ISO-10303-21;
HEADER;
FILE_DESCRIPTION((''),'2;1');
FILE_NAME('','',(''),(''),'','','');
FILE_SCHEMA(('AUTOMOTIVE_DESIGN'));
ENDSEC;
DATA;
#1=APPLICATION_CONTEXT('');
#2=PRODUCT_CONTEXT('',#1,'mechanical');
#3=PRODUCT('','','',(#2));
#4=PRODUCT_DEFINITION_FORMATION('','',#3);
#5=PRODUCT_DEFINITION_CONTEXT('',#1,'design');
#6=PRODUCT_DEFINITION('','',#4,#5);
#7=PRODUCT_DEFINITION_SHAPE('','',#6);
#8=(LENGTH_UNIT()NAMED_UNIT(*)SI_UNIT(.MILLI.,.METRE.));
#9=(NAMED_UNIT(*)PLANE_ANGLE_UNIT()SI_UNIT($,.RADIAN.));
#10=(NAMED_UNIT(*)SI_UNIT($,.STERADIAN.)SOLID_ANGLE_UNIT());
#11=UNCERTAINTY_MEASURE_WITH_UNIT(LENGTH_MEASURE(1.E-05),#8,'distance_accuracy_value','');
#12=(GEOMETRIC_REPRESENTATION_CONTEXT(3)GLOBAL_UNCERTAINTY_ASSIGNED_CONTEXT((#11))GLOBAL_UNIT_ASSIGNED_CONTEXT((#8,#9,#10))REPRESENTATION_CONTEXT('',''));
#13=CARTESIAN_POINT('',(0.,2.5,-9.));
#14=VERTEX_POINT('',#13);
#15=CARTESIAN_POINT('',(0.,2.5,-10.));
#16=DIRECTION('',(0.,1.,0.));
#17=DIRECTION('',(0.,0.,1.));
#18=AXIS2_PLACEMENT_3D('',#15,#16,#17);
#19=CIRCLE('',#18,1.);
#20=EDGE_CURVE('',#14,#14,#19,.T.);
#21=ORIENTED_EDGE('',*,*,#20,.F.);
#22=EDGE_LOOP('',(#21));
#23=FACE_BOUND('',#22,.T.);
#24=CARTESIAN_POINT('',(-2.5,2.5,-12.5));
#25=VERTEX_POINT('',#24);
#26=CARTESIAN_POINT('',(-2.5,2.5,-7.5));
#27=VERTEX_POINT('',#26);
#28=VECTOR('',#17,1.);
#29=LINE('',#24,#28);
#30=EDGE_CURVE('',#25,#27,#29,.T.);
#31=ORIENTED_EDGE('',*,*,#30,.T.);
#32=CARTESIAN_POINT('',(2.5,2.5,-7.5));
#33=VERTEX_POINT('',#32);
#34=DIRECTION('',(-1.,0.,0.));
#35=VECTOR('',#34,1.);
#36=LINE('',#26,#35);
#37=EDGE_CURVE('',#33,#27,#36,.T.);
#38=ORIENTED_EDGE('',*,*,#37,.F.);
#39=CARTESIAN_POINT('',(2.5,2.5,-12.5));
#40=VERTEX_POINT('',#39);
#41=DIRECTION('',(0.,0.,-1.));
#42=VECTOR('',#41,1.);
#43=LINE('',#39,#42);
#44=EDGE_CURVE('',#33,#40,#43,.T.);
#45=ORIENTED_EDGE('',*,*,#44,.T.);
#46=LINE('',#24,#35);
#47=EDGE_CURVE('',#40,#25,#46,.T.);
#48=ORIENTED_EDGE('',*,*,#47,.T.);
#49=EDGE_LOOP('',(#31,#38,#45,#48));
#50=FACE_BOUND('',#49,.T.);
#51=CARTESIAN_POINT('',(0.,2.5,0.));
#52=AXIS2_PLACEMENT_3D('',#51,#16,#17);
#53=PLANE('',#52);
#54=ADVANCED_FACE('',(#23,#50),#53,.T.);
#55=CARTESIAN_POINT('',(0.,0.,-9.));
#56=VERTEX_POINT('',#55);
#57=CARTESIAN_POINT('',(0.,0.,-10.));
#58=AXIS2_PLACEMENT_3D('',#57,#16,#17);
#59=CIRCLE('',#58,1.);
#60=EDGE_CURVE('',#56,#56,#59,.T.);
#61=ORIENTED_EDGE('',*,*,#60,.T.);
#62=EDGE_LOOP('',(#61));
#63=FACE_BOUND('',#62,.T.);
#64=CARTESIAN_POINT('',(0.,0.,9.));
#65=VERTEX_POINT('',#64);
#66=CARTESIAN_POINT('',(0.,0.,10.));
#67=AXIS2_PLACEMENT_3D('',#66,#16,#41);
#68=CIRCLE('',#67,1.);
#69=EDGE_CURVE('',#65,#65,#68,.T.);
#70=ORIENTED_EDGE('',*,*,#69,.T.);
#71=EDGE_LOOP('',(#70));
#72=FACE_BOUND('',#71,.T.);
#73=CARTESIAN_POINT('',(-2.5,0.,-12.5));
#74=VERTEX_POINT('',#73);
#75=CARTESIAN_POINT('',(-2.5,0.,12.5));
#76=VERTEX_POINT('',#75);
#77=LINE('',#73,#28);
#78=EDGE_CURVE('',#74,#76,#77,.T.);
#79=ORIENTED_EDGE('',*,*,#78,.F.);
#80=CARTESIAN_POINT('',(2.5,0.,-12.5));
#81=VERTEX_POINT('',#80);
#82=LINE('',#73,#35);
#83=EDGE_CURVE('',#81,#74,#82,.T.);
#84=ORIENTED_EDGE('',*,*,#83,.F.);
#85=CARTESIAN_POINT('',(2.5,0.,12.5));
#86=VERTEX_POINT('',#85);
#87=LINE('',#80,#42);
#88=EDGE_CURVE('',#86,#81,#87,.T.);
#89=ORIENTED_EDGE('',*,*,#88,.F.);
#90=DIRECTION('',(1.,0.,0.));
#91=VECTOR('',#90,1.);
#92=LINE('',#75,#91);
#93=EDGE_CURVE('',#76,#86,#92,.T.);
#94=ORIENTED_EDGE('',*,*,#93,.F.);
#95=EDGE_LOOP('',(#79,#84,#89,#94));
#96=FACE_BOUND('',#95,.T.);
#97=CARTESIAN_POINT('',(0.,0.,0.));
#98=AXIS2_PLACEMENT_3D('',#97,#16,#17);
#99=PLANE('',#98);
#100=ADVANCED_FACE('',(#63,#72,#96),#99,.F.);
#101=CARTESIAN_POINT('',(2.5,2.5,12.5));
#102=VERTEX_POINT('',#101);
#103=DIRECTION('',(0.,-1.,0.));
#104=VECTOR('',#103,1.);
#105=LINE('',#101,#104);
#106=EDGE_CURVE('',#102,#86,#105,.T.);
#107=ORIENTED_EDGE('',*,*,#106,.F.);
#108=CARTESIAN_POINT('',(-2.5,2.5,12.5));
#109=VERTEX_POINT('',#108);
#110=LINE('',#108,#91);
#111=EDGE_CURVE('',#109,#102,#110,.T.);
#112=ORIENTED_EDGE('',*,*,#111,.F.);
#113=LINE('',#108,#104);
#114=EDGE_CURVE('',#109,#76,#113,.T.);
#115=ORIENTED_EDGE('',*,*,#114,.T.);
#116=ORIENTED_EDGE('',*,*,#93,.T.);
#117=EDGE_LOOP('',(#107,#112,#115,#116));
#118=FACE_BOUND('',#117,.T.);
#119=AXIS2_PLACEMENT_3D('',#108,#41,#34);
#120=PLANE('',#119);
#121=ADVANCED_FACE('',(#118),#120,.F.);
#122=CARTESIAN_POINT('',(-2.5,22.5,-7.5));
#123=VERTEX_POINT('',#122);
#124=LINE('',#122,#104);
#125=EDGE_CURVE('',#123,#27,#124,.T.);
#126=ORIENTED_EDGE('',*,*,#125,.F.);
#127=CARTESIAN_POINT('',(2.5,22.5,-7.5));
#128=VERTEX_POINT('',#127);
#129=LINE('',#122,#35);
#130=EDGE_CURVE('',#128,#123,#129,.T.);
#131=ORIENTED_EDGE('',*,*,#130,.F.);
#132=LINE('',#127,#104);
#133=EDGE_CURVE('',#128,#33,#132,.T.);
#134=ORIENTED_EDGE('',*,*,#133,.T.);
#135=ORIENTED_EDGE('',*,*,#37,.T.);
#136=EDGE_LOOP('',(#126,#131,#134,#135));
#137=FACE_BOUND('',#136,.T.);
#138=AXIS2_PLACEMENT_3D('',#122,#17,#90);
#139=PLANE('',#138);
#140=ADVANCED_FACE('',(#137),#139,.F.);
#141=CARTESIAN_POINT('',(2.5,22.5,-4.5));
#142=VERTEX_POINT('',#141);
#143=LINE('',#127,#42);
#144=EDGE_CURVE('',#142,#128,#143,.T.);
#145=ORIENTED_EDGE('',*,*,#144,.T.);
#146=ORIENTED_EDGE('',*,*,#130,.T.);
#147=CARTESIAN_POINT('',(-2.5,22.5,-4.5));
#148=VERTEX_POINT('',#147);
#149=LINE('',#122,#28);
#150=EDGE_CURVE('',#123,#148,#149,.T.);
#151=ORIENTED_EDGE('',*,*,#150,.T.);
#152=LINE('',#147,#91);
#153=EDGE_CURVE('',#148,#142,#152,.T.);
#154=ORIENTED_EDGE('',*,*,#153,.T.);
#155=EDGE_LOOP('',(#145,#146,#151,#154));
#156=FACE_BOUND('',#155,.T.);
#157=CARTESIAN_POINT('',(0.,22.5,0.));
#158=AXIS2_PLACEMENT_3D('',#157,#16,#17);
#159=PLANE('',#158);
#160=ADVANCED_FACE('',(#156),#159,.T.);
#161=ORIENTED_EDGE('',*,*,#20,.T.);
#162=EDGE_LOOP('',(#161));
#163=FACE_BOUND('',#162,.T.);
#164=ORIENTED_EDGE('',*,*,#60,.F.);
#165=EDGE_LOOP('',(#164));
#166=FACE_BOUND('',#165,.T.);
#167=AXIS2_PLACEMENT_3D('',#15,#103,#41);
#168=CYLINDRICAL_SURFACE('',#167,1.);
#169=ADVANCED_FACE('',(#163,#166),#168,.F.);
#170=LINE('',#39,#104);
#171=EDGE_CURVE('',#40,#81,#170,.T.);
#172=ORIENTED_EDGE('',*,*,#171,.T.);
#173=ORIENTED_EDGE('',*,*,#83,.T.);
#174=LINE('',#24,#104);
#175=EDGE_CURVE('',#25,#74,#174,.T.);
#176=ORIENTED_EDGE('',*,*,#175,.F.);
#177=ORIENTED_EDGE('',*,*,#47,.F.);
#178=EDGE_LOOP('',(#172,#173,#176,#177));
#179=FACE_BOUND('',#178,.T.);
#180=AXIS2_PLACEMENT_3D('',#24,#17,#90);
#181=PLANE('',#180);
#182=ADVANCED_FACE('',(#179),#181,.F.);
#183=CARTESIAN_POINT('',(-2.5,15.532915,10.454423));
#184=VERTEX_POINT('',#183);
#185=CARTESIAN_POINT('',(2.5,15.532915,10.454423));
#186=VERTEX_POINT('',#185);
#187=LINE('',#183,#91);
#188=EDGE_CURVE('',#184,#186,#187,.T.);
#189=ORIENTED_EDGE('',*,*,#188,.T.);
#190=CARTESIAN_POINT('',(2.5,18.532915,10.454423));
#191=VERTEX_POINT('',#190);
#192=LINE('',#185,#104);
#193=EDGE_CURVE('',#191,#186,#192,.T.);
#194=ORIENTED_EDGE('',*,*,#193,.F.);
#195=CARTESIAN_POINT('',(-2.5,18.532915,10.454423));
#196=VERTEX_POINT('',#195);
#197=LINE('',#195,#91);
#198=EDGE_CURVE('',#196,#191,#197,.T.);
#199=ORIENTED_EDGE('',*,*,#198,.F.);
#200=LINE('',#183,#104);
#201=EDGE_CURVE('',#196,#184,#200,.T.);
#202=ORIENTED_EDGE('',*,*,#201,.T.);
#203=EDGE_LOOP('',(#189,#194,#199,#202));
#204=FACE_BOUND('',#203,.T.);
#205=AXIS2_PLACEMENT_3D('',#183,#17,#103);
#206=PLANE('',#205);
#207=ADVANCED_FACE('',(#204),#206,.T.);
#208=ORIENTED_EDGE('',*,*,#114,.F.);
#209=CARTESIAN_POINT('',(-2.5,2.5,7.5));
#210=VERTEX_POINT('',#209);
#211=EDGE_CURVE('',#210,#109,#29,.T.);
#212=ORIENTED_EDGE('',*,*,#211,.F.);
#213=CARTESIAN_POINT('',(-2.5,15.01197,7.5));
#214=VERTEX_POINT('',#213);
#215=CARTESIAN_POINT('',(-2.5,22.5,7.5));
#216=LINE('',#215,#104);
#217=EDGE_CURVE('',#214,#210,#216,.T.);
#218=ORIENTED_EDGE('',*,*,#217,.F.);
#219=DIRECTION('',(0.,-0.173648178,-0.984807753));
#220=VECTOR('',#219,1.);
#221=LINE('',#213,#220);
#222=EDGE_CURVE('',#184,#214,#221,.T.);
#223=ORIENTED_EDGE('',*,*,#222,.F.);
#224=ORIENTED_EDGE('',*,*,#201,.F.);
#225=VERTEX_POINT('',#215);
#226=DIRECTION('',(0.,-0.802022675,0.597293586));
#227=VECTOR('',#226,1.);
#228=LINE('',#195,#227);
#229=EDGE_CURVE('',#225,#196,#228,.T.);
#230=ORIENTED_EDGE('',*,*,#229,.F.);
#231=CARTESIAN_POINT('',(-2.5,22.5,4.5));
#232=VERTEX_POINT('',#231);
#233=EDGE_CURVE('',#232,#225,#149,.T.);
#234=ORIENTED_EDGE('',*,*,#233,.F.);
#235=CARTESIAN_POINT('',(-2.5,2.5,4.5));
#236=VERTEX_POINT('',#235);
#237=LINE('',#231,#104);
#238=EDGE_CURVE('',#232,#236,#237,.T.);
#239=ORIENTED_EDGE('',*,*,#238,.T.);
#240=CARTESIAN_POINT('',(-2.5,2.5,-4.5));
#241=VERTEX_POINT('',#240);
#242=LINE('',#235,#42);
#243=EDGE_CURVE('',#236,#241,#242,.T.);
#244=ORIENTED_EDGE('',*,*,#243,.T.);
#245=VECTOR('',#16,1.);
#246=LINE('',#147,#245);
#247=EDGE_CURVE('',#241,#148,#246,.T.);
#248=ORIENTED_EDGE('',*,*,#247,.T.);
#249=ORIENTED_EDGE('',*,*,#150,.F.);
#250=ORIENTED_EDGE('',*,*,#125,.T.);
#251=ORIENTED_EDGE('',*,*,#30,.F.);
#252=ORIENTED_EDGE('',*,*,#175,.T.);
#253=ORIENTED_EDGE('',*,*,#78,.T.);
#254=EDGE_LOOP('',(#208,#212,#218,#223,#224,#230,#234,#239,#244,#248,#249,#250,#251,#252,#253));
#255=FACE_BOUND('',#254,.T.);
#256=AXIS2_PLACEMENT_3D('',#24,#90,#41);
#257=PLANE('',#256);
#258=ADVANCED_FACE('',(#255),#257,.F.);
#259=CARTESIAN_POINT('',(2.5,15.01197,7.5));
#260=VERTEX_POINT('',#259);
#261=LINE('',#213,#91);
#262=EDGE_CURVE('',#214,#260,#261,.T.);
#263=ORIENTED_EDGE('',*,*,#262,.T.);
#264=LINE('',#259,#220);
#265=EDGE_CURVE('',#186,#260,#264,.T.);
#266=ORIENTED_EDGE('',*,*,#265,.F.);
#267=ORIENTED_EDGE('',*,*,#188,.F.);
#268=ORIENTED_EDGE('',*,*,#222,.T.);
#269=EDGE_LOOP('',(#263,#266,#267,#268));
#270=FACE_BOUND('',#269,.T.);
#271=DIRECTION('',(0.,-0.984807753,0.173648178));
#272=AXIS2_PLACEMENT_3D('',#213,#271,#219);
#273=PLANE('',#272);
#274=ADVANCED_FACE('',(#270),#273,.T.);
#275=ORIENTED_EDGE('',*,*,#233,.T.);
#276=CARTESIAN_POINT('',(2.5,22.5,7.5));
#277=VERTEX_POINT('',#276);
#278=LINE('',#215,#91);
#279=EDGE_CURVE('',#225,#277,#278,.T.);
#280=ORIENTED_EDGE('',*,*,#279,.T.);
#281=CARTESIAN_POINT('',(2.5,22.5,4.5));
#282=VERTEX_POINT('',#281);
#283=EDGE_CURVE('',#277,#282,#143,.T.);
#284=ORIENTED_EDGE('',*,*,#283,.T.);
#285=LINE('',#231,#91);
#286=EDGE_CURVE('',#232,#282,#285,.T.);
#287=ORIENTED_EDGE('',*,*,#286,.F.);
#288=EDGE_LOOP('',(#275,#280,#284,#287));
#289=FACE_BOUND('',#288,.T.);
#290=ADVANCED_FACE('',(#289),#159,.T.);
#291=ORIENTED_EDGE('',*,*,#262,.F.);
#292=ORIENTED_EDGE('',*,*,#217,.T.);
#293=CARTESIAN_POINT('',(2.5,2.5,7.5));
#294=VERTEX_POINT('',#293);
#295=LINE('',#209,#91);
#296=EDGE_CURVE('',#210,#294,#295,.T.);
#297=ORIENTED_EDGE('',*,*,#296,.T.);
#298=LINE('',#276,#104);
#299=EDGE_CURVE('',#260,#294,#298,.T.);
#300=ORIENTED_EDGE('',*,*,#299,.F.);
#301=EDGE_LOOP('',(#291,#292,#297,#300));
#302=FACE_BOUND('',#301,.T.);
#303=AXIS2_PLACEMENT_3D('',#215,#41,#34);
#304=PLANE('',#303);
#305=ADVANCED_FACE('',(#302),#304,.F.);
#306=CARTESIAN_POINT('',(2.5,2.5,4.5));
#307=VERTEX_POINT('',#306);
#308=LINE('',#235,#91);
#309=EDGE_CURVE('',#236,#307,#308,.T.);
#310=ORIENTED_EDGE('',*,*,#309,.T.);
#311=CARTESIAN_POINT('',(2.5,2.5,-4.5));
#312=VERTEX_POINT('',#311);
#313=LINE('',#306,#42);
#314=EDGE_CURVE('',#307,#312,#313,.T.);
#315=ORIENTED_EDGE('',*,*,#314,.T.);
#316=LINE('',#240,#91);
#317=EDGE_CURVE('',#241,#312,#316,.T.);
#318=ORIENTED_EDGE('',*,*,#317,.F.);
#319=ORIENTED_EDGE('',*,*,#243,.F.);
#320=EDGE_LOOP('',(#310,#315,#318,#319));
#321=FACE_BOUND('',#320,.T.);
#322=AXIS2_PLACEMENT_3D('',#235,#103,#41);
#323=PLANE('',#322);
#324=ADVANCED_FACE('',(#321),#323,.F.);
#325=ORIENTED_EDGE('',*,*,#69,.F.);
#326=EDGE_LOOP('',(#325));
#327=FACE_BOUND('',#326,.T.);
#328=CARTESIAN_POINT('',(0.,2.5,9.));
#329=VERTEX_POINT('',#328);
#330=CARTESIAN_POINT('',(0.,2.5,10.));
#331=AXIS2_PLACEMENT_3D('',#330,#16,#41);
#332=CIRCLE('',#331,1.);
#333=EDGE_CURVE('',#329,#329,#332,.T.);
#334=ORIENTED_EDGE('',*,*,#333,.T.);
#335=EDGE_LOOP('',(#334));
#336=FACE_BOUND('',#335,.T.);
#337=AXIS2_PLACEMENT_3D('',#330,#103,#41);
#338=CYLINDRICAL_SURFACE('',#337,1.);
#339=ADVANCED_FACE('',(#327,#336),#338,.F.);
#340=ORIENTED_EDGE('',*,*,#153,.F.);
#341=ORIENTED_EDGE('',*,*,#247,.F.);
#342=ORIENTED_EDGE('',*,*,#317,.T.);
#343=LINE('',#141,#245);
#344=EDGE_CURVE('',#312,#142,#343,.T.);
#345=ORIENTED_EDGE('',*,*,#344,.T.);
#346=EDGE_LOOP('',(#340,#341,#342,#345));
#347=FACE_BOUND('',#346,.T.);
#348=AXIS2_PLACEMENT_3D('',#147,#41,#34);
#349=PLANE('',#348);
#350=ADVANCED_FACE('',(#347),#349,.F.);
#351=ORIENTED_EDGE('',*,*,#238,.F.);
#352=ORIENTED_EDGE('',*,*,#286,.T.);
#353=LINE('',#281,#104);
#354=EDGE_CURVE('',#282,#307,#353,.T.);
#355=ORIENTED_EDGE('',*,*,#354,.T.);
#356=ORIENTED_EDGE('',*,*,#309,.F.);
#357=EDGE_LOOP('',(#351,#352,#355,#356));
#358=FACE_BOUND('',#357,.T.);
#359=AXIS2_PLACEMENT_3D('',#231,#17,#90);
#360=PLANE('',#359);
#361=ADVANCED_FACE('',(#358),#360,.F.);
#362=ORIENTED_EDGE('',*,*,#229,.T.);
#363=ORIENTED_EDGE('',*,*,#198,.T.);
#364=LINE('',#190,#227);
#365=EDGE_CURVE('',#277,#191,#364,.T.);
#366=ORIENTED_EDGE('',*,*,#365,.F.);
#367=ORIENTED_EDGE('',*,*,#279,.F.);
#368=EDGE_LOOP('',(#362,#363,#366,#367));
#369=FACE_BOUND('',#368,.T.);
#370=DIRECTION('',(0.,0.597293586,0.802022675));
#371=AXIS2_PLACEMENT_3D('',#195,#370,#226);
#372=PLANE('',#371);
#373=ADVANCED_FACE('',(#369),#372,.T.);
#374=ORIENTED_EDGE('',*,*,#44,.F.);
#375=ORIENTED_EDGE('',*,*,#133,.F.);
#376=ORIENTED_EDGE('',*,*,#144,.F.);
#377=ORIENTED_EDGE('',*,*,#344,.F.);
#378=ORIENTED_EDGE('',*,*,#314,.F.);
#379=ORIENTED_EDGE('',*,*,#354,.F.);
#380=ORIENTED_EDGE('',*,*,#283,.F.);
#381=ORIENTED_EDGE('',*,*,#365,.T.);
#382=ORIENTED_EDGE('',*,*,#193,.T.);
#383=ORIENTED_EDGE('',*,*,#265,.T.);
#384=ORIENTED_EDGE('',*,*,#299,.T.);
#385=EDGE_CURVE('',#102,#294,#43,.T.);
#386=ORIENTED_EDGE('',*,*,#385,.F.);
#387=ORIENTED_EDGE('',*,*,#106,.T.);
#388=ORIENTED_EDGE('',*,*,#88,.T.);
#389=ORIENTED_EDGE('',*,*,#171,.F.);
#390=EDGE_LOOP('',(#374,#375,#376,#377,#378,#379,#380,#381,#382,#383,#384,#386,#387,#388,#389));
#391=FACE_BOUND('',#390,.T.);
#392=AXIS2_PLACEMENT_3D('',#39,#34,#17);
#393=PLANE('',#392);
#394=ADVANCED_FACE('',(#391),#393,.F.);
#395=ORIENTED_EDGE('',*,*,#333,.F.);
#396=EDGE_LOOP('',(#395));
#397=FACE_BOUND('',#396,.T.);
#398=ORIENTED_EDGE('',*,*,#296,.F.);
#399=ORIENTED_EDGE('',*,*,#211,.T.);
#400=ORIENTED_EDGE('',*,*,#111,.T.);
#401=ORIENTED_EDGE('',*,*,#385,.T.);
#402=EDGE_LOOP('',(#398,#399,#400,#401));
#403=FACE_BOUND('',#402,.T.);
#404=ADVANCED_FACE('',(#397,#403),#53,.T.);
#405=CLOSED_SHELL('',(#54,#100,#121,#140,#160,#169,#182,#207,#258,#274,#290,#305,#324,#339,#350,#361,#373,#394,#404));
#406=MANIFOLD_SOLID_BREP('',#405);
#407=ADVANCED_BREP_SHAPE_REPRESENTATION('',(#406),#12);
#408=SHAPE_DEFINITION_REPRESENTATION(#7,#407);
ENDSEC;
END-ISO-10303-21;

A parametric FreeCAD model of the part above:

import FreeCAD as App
import Part
import Sketcher
from FreeCAD import Vector
Q = App.Units.Quantity

doc = App.newDocument("Part")
body = doc.addObject("PartDesign::Body", "Body")

sketch1 = body.newObject("Sketcher::SketchObject", "Sketch")
sketch1.AttachmentSupport = (doc.getObject("XZ_Plane"), [""])
sketch1.MapMode = "FlatFace"
sketch1.addGeometry(Part.LineSegment(Vector(-2.5, -12.5, 0), Vector(-2.5, 12.5, 0)), False)
sketch1.addGeometry(Part.LineSegment(Vector(-2.5, 12.5, 0), Vector(2.5, 12.5, 0)), False)
sketch1.addGeometry(Part.LineSegment(Vector(2.5, 12.5, 0), Vector(2.5, -12.5, 0)), False)
sketch1.addGeometry(Part.LineSegment(Vector(2.5, -12.5, 0), Vector(-2.5, -12.5, 0)), False)
sketch1.addGeometry(Part.Circle(Vector(0, 10, 0), Vector(0, 0, 1), 1), False)
sketch1.addGeometry(Part.Circle(Vector(0, -10, 0), Vector(0, 0, 1), 1), False)
sketch1.addConstraint(Sketcher.Constraint("Coincident", 0, 2, 1, 1))
sketch1.addConstraint(Sketcher.Constraint("Coincident", 1, 2, 2, 1))
sketch1.addConstraint(Sketcher.Constraint("Coincident", 2, 2, 3, 1))
sketch1.addConstraint(Sketcher.Constraint("Coincident", 3, 2, 0, 1))
sketch1.addConstraint(Sketcher.Constraint("Vertical", 0))
sketch1.addConstraint(Sketcher.Constraint("Horizontal", 1))
sketch1.addConstraint(Sketcher.Constraint("Vertical", 2))
sketch1.addConstraint(Sketcher.Constraint("Horizontal", 3))
sketch1.addConstraint(Sketcher.Constraint("Equal", 4, 5))
sketch1.addConstraint(Sketcher.Constraint("Symmetric", 4, 3, 5, 3, -1, 1))
sketch1.addConstraint(Sketcher.Constraint("Symmetric", 0, 2, 2, 2, -1, 1))
sketch1.addConstraint(Sketcher.Constraint("PointOnObject", 4, 3, -2))
sketch1.addConstraint(Sketcher.Constraint("Diameter", 4, 2.0))
sketch1.addConstraint(Sketcher.Constraint("DistanceX", 1, 1, 1, 2, 5.0))
sketch1.addConstraint(Sketcher.Constraint("DistanceY", 0, 1, 0, 2, 25.0))
sketch1.addConstraint(Sketcher.Constraint("DistanceY", -1, 1, 4, 3, 10.0))
pad1 = body.newObject("PartDesign::Pad", "Pad")
pad1.Profile = sketch1
pad1.Length = 2.5
pad1.Reversed = True

sketch2 = body.newObject("Sketcher::SketchObject", "Sketch001")
sketch2.AttachmentSupport = (doc.getObject("XZ_Plane"), [""])
sketch2.MapMode = "FlatFace"
sketch2.AttachmentOffset = App.Placement(Vector(0, 0, -2.5), App.Rotation())
sketch2.addGeometry(Part.LineSegment(Vector(-2, -8, 0), Vector(-2, 8, 0)), False)
sketch2.addGeometry(Part.LineSegment(Vector(-2, 8, 0), Vector(2, 8, 0)), False)
sketch2.addGeometry(Part.LineSegment(Vector(2, 8, 0), Vector(2, -8, 0)), False)
sketch2.addGeometry(Part.LineSegment(Vector(2, -8, 0), Vector(-2, -8, 0)), False)
sketch2.addConstraint(Sketcher.Constraint("Coincident", 0, 2, 1, 1))
sketch2.addConstraint(Sketcher.Constraint("Coincident", 1, 2, 2, 1))
sketch2.addConstraint(Sketcher.Constraint("Coincident", 2, 2, 3, 1))
sketch2.addConstraint(Sketcher.Constraint("Coincident", 3, 2, 0, 1))
sketch2.addConstraint(Sketcher.Constraint("Vertical", 0))
sketch2.addConstraint(Sketcher.Constraint("Horizontal", 1))
sketch2.addConstraint(Sketcher.Constraint("Vertical", 2))
sketch2.addConstraint(Sketcher.Constraint("Horizontal", 3))
sketch2.addConstraint(Sketcher.Constraint("Symmetric", 0, 2, 2, 2, -1, 1))
sketch2.addConstraint(Sketcher.Constraint("DistanceX", 1, 1, 1, 2, 5.0))
sketch2.addConstraint(Sketcher.Constraint("DistanceY", 0, 1, 0, 2, 15.0))
pad2 = body.newObject("PartDesign::Pad", "Pad001")
pad2.Profile = sketch2
pad2.Length = 20
pad2.Reversed = True

sketch3 = body.newObject("Sketcher::SketchObject", "Sketch002")
sketch3.AttachmentSupport = (doc.getObject("YZ_Plane"), [""])
sketch3.MapMode = "FlatFace"
sketch3.AttachmentOffset = App.Placement(Vector(0, 0, 2.5), App.Rotation())
sketch3.addGeometry(Part.LineSegment(Vector(22, 4, 0), Vector(2, 4, 0)), False)
sketch3.addGeometry(Part.LineSegment(Vector(2, 4, 0), Vector(2, -4, 0)), False)
sketch3.addGeometry(Part.LineSegment(Vector(2, -4, 0), Vector(22, -4, 0)), False)
sketch3.addGeometry(Part.LineSegment(Vector(22, -4, 0), Vector(22, 4, 0)), False)
sketch3.addConstraint(Sketcher.Constraint("Coincident", 0, 2, 1, 1))
sketch3.addConstraint(Sketcher.Constraint("Coincident", 1, 2, 2, 1))
sketch3.addConstraint(Sketcher.Constraint("Coincident", 2, 2, 3, 1))
sketch3.addConstraint(Sketcher.Constraint("Coincident", 3, 2, 0, 1))
sketch3.addConstraint(Sketcher.Constraint("Horizontal", 0))
sketch3.addConstraint(Sketcher.Constraint("Vertical", 1))
sketch3.addConstraint(Sketcher.Constraint("Horizontal", 2))
sketch3.addConstraint(Sketcher.Constraint("Vertical", 3))
sketch3.addConstraint(Sketcher.Constraint("DistanceX", 0, 2, 0, 1, 20.0))
sketch3.addConstraint(Sketcher.Constraint("DistanceY", 1, 2, 1, 1, 9.0))
sketch3.addConstraint(Sketcher.Constraint("DistanceX", -1, 1, 0, 2, 2.5))
sketch3.addConstraint(Sketcher.Constraint("DistanceY", -1, 1, 0, 2, 4.5))
pocket1 = body.newObject("PartDesign::Pocket", "Pocket")
pocket1.Profile = sketch3
pocket1.Type = "ThroughAll"

sketch4 = body.newObject("Sketcher::SketchObject", "Sketch003")
sketch4.AttachmentSupport = (doc.getObject("YZ_Plane"), [""])
sketch4.MapMode = "FlatFace"
sketch4.AttachmentOffset = App.Placement(Vector(0, 0, 2.5), App.Rotation())
sketch4.addGeometry(Part.LineSegment(Vector(15.5, 10.5, 0), Vector(15, 7.5, 0)), False)
sketch4.addGeometry(Part.LineSegment(Vector(15, 7.5, 0), Vector(22.5, 7.5, 0)), False)
sketch4.addGeometry(Part.LineSegment(Vector(22.5, 7.5, 0), Vector(18.5, 10.5, 0)), False)
sketch4.addGeometry(Part.LineSegment(Vector(18.5, 10.5, 0), Vector(15.5, 10.5, 0)), False)
sketch4.addConstraint(Sketcher.Constraint("Coincident", 0, 2, 1, 1))
sketch4.addConstraint(Sketcher.Constraint("Coincident", 1, 2, 2, 1))
sketch4.addConstraint(Sketcher.Constraint("Coincident", 2, 2, 3, 1))
sketch4.addConstraint(Sketcher.Constraint("Coincident", 3, 2, 0, 1))
sketch4.addConstraint(Sketcher.Constraint("Horizontal", 1))
sketch4.addConstraint(Sketcher.Constraint("Horizontal", 3))
sketch4.addConstraint(Sketcher.Constraint("DistanceX", 3, 2, 3, 1, 3.0))
sketch4.addConstraint(Sketcher.Constraint("Angle", 0, Q("-100 deg")))
sketch4.addConstraint(Sketcher.Constraint("Distance", 0, 3.0))
sketch4.addConstraint(Sketcher.Constraint("DistanceY", -1, 1, 0, 2, 7.5))
sketch4.addConstraint(Sketcher.Constraint("DistanceX", -1, 1, 1, 2, 22.5))
sketch4.addConstraint(Sketcher.Constraint("DistanceX", 1, 1, 1, 2, 7.48803))
pad3 = body.newObject("PartDesign::Pad", "Pad002")
pad3.Profile = sketch4
pad3.Length = 5
pad3.Reversed = True

doc.recompute()
